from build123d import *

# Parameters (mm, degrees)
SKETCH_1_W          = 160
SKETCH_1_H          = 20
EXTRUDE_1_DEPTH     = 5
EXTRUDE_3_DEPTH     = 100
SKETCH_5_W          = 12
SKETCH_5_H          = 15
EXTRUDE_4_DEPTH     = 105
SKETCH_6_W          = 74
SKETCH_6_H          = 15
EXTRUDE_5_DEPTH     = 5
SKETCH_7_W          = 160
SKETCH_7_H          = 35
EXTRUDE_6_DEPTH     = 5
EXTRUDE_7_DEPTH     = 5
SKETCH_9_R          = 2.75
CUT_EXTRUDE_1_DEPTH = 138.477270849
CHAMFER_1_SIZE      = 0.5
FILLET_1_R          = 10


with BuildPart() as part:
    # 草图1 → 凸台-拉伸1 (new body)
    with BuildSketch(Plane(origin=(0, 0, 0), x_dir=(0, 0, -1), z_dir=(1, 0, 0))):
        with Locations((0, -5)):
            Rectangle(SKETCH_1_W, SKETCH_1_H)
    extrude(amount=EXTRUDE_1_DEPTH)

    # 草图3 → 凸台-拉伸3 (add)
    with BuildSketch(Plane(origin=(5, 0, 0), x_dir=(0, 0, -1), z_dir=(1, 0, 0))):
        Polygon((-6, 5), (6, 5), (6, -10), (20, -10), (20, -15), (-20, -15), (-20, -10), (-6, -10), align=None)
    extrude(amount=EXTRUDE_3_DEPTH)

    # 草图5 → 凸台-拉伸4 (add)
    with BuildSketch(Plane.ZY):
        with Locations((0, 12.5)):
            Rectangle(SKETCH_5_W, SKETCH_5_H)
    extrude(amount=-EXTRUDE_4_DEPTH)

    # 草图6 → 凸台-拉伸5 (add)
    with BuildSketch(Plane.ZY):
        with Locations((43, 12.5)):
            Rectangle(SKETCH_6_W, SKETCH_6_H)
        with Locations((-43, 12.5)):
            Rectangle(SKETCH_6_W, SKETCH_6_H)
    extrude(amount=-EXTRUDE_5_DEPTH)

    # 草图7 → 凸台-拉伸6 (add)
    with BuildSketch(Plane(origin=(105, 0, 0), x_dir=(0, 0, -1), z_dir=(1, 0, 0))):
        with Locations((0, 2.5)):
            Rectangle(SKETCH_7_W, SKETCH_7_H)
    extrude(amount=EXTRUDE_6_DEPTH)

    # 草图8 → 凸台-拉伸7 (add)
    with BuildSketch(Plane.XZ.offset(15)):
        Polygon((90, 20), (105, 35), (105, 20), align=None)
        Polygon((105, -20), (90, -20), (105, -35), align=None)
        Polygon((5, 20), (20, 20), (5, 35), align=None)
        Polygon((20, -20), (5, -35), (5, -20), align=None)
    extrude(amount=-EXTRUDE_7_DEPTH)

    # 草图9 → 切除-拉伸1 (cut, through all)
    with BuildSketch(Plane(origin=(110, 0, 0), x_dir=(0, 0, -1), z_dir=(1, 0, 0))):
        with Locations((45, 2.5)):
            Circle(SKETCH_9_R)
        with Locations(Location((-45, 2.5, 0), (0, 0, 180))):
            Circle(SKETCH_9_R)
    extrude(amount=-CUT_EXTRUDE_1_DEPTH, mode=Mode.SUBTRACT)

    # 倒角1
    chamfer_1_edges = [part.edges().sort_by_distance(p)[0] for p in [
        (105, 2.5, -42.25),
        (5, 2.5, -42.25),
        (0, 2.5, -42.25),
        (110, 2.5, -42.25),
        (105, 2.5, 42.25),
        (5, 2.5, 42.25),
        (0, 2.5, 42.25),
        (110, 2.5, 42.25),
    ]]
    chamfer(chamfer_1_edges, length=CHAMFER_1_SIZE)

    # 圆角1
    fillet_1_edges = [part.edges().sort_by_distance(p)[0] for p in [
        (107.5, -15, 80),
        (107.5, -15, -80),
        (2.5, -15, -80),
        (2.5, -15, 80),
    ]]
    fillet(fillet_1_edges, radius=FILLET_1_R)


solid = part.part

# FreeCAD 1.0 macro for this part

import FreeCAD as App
import Part
import Sketcher

V = App.Vector
Q = App.Units.Quantity


def edges_at(feature, points):
    """Names of the edges that pass closest to the given points."""
    edges = feature.Shape.Edges
    near = lambda p: min(range(len(edges)), key=lambda i: edges[i].distToShape(Part.Vertex(*p))[0])
    return sorted({f"Edge{near(p) + 1}" for p in points})

doc = App.newDocument("Part")
body = doc.addObject("PartDesign::Body", "Body")

sketch1 = body.newObject("Sketcher::SketchObject", "Sketch")
sketch1.AttachmentSupport = (doc.getObject("YZ_Plane"), [""])
sketch1.MapMode = "FlatFace"
sketch1.addGeometry([
    Part.LineSegment(V(5, 80, 0), V(-15, 80, 0)),
    Part.LineSegment(V(-15, 80, 0), V(-15, -80, 0)),
    Part.LineSegment(V(-15, -80, 0), V(5, -80, 0)),
    Part.LineSegment(V(5, -80, 0), V(5, 80, 0)),
], False)
sketch1.addConstraint([
    Sketcher.Constraint("Coincident", 0, 2, 1, 1),
    Sketcher.Constraint("Coincident", 1, 2, 2, 1),
    Sketcher.Constraint("Coincident", 2, 2, 3, 1),
    Sketcher.Constraint("Coincident", 3, 2, 0, 1),
    Sketcher.Constraint("Horizontal", 0),
    Sketcher.Constraint("Vertical", 1),
    Sketcher.Constraint("Horizontal", 2),
    Sketcher.Constraint("Vertical", 3),
    Sketcher.Constraint("DistanceX", 0, 2, 0, 1, Q("20 mm")),
    Sketcher.Constraint("DistanceY", 1, 2, 1, 1, Q("160 mm")),
    Sketcher.Constraint("DistanceX", 0, 2, -1, 1, Q("15 mm")),
    Sketcher.Constraint("DistanceY", -1, 1, 0, 2, Q("80 mm")),
])
pad1 = body.newObject("PartDesign::Pad", "Pad")
pad1.Profile = sketch1
pad1.Length = 5

sketch2 = body.newObject("Sketcher::SketchObject", "Sketch001")
sketch2.AttachmentSupport = (doc.getObject("YZ_Plane"), [""])
sketch2.MapMode = "FlatFace"
sketch2.AttachmentOffset = App.Placement(V(0, 0, 5), App.Rotation())
sketch2.addGeometry([
    Part.LineSegment(V(5, -6, 0), V(5, 6, 0)),
    Part.LineSegment(V(5, 6, 0), V(-10, 6, 0)),
    Part.LineSegment(V(-10, 6, 0), V(-10, 20, 0)),
    Part.LineSegment(V(-10, 20, 0), V(-15, 20, 0)),
    Part.LineSegment(V(-15, 20, 0), V(-15, -20, 0)),
    Part.LineSegment(V(-15, -20, 0), V(-10, -20, 0)),
    Part.LineSegment(V(-10, -20, 0), V(-10, -6, 0)),
    Part.LineSegment(V(-10, -6, 0), V(5, -6, 0)),
], False)
sketch2.addConstraint([
    Sketcher.Constraint("Coincident", 0, 2, 1, 1),
    Sketcher.Constraint("Coincident", 1, 2, 2, 1),
    Sketcher.Constraint("Coincident", 2, 2, 3, 1),
    Sketcher.Constraint("Coincident", 3, 2, 4, 1),
    Sketcher.Constraint("Coincident", 4, 2, 5, 1),
    Sketcher.Constraint("Coincident", 5, 2, 6, 1),
    Sketcher.Constraint("Coincident", 6, 2, 7, 1),
    Sketcher.Constraint("Coincident", 7, 2, 0, 1),
    Sketcher.Constraint("Vertical", 0),
    Sketcher.Constraint("Horizontal", 1),
    Sketcher.Constraint("Vertical", 2),
    Sketcher.Constraint("Horizontal", 3),
    Sketcher.Constraint("Vertical", 4),
    Sketcher.Constraint("Horizontal", 5),
    Sketcher.Constraint("Vertical", 6),
    Sketcher.Constraint("Horizontal", 7),
    Sketcher.Constraint("Symmetric", 2, 2, 5, 2, -1),
    Sketcher.Constraint("Equal", 2, 6),
    Sketcher.Constraint("DistanceX", 1, 2, 1, 1, Q("15 mm")),
    Sketcher.Constraint("DistanceX", 3, 2, 3, 1, Q("5 mm")),
    Sketcher.Constraint("DistanceY", 0, 1, 0, 2, Q("12 mm")),
    Sketcher.Constraint("DistanceY", 2, 1, 2, 2, Q("14 mm")),
    Sketcher.Constraint("DistanceX", -1, 1, 0, 2, Q("5 mm")),
])
pad2 = body.newObject("PartDesign::Pad", "Pad001")
pad2.Profile = sketch2
pad2.Length = 100

sketch3 = body.newObject("Sketcher::SketchObject", "Sketch002")
sketch3.AttachmentSupport = (doc.getObject("YZ_Plane"), [""])
sketch3.MapMode = "FlatFace"
sketch3.addGeometry([
    Part.LineSegment(V(20, -6, 0), V(5, -6, 0)),
    Part.LineSegment(V(5, -6, 0), V(5, 6, 0)),
    Part.LineSegment(V(5, 6, 0), V(20, 6, 0)),
    Part.LineSegment(V(20, 6, 0), V(20, -6, 0)),
], False)
sketch3.addConstraint([
    Sketcher.Constraint("Coincident", 0, 2, 1, 1),
    Sketcher.Constraint("Coincident", 1, 2, 2, 1),
    Sketcher.Constraint("Coincident", 2, 2, 3, 1),
    Sketcher.Constraint("Coincident", 3, 2, 0, 1),
    Sketcher.Constraint("Horizontal", 0),
    Sketcher.Constraint("Vertical", 1),
    Sketcher.Constraint("Horizontal", 2),
    Sketcher.Constraint("Vertical", 3),
    Sketcher.Constraint("DistanceX", 0, 2, 0, 1, Q("15 mm")),
    Sketcher.Constraint("DistanceY", 1, 1, 1, 2, Q("12 mm")),
    Sketcher.Constraint("DistanceX", -1, 1, 0, 2, Q("5 mm")),
    Sketcher.Constraint("DistanceY", 0, 2, -1, 1, Q("6 mm")),
])
pad3 = body.newObject("PartDesign::Pad", "Pad002")
pad3.Profile = sketch3
pad3.Length = 105

sketch4 = body.newObject("Sketcher::SketchObject", "Sketch003")
sketch4.AttachmentSupport = (doc.getObject("YZ_Plane"), [""])
sketch4.MapMode = "FlatFace"
sketch4.addGeometry([
    Part.LineSegment(V(20, 6, 0), V(5, 6, 0)),
    Part.LineSegment(V(5, 6, 0), V(5, 80, 0)),
    Part.LineSegment(V(5, 80, 0), V(20, 80, 0)),
    Part.LineSegment(V(20, 80, 0), V(20, 6, 0)),
    Part.LineSegment(V(20, -80, 0), V(5, -80, 0)),
    Part.LineSegment(V(5, -80, 0), V(5, -6, 0)),
    Part.LineSegment(V(5, -6, 0), V(20, -6, 0)),
    Part.LineSegment(V(20, -6, 0), V(20, -80, 0)),
], False)
sketch4.addConstraint([
    Sketcher.Constraint("Coincident", 0, 2, 1, 1),
    Sketcher.Constraint("Coincident", 1, 2, 2, 1),
    Sketcher.Constraint("Coincident", 2, 2, 3, 1),
    Sketcher.Constraint("Coincident", 3, 2, 0, 1),
    Sketcher.Constraint("Coincident", 4, 2, 5, 1),
    Sketcher.Constraint("Coincident", 5, 2, 6, 1),
    Sketcher.Constraint("Coincident", 6, 2, 7, 1),
    Sketcher.Constraint("Coincident", 7, 2, 4, 1),
    Sketcher.Constraint("Horizontal", 0),
    Sketcher.Constraint("Vertical", 1),
    Sketcher.Constraint("Horizontal", 2),
    Sketcher.Constraint("Vertical", 3),
    Sketcher.Constraint("Horizontal", 4),
    Sketcher.Constraint("Vertical", 5),
    Sketcher.Constraint("Horizontal", 6),
    Sketcher.Constraint("Vertical", 7),
    Sketcher.Constraint("Symmetric", 1, 2, 4, 2, -1),
    Sketcher.Constraint("Symmetric", 3, 2, 6, 2, -1),
    Sketcher.Constraint("DistanceX", 0, 2, 0, 1, Q("15 mm")),
    Sketcher.Constraint("DistanceY", 1, 1, 1, 2, Q("74 mm")),
    Sketcher.Constraint("DistanceX", -1, 1, 0, 2, Q("5 mm")),
    Sketcher.Constraint("DistanceY", -1, 1, 0, 2, Q("6 mm")),
])
pad4 = body.newObject("PartDesign::Pad", "Pad003")
pad4.Profile = sketch4
pad4.Length = 5

sketch5 = body.newObject("Sketcher::SketchObject", "Sketch004")
sketch5.AttachmentSupport = (doc.getObject("YZ_Plane"), [""])
sketch5.MapMode = "FlatFace"
sketch5.AttachmentOffset = App.Placement(V(0, 0, 105), App.Rotation())
sketch5.addGeometry([
    Part.LineSegment(V(20, 80, 0), V(-15, 80, 0)),
    Part.LineSegment(V(-15, 80, 0), V(-15, -80, 0)),
    Part.LineSegment(V(-15, -80, 0), V(20, -80, 0)),
    Part.LineSegment(V(20, -80, 0), V(20, 80, 0)),
], False)
sketch5.addConstraint([
    Sketcher.Constraint("Coincident", 0, 2, 1, 1),
    Sketcher.Constraint("Coincident", 1, 2, 2, 1),
    Sketcher.Constraint("Coincident", 2, 2, 3, 1),
    Sketcher.Constraint("Coincident", 3, 2, 0, 1),
    Sketcher.Constraint("Horizontal", 0),
    Sketcher.Constraint("Vertical", 1),
    Sketcher.Constraint("Horizontal", 2),
    Sketcher.Constraint("Vertical", 3),
    Sketcher.Constraint("DistanceX", 0, 2, 0, 1, Q("35 mm")),
    Sketcher.Constraint("DistanceY", 1, 2, 1, 1, Q("160 mm")),
    Sketcher.Constraint("DistanceX", 0, 2, -1, 1, Q("15 mm")),
    Sketcher.Constraint("DistanceY", -1, 1, 0, 2, Q("80 mm")),
])
pad5 = body.newObject("PartDesign::Pad", "Pad004")
pad5.Profile = sketch5
pad5.Length = 5

sketch6 = body.newObject("Sketcher::SketchObject", "Sketch005")
sketch6.AttachmentSupport = (doc.getObject("XZ_Plane"), [""])
sketch6.MapMode = "FlatFace"
sketch6.AttachmentOffset = App.Placement(V(0, 0, 15), App.Rotation())
sketch6.addGeometry([
    Part.LineSegment(V(105, 35, 0), V(90, 20, 0)),
    Part.LineSegment(V(90, 20, 0), V(105, 20, 0)),
    Part.LineSegment(V(105, 20, 0), V(105, 35, 0)),
    Part.LineSegment(V(105, -20, 0), V(90, -20, 0)),
    Part.LineSegment(V(90, -20, 0), V(105, -35, 0)),
    Part.LineSegment(V(105, -35, 0), V(105, -20, 0)),
    Part.LineSegment(V(5, 20, 0), V(20, 20, 0)),
    Part.LineSegment(V(20, 20, 0), V(5, 35, 0)),
    Part.LineSegment(V(5, 35, 0), V(5, 20, 0)),
    Part.LineSegment(V(5, -35, 0), V(20, -20, 0)),
    Part.LineSegment(V(20, -20, 0), V(5, -20, 0)),
    Part.LineSegment(V(5, -20, 0), V(5, -35, 0)),
], False)
sketch6.addConstraint([
    Sketcher.Constraint("Coincident", 0, 2, 1, 1),
    Sketcher.Constraint("Coincident", 1, 2, 2, 1),
    Sketcher.Constraint("Coincident", 2, 2, 0, 1),
    Sketcher.Constraint("Coincident", 3, 2, 4, 1),
    Sketcher.Constraint("Coincident", 4, 2, 5, 1),
    Sketcher.Constraint("Coincident", 5, 2, 3, 1),
    Sketcher.Constraint("Coincident", 6, 2, 7, 1),
    Sketcher.Constraint("Coincident", 7, 2, 8, 1),
    Sketcher.Constraint("Coincident", 8, 2, 6, 1),
    Sketcher.Constraint("Coincident", 9, 2, 10, 1),
    Sketcher.Constraint("Coincident", 10, 2, 11, 1),
    Sketcher.Constraint("Coincident", 11, 2, 9, 1),
    Sketcher.Constraint("Horizontal", 1),
    Sketcher.Constraint("Vertical", 2),
    Sketcher.Constraint("Horizontal", 3),
    Sketcher.Constraint("Vertical", 5),
    Sketcher.Constraint("Horizontal", 6),
    Sketcher.Constraint("Vertical", 8),
    Sketcher.Constraint("Horizontal", 10),
    Sketcher.Constraint("Vertical", 11),
    Sketcher.Constraint("Symmetric", 0, 2, 3, 2, -1),
    Sketcher.Constraint("Symmetric", 2, 2, 4, 2, -1),
    Sketcher.Constraint("Symmetric", 6, 2, 9, 2, -1),
    Sketcher.Constraint("Symmetric", 7, 2, 11, 2, -1),
    Sketcher.Constraint("Perpendicular", 0, 4),
    Sketcher.Constraint("Parallel", 4, 7),
    Sketcher.Constraint("Horizontal", 1, 2, 6, 2),
    Sketcher.Constraint("Horizontal", 2, 2, 7, 2),
    Sketcher.Constraint("DistanceX", 1, 1, 1, 2, Q("15 mm")),
    Sketcher.Constraint("DistanceX", -1, 1, 0, 2, Q("90 mm")),
    Sketcher.Constraint("DistanceY", -1, 1, 0, 2, Q("20 mm")),
    Sketcher.Constraint("DistanceX", -1, 1, 6, 2, Q("20 mm")),
])
pad6 = body.newObject("PartDesign::Pad", "Pad005")
pad6.Profile = sketch6
pad6.Length = 5
pad6.Reversed = True

sketch7 = body.newObject("Sketcher::SketchObject", "Sketch006")
sketch7.AttachmentSupport = (doc.getObject("YZ_Plane"), [""])
sketch7.MapMode = "FlatFace"
sketch7.AttachmentOffset = App.Placement(V(0, 0, 110), App.Rotation())
sketch7.addGeometry([
    Part.Circle(V(2.5, -45, 0), V(0, 0, 1), 2.8),
    Part.Circle(V(2.5, 45, 0), V(0, 0, 1), 2.8),
], False)
sketch7.addConstraint([
    Sketcher.Constraint("Equal", 0, 1),
    Sketcher.Constraint("Symmetric", 0, 3, 1, 3, -1),
    Sketcher.Constraint("Diameter", 0, Q("5.5 mm")),
    Sketcher.Constraint("DistanceY", 0, 3, -1, 1, Q("45 mm")),
    Sketcher.Constraint("DistanceX", -1, 1, 0, 3, Q("2.5 mm")),
])
pocket1 = body.newObject("PartDesign::Pocket", "Pocket")
pocket1.Profile = sketch7
pocket1.Type = "ThroughAll"
doc.recompute()

chamfer = body.newObject("PartDesign::Chamfer", "Chamfer")
chamfer.Base = (pocket1, edges_at(pocket1, [
    (105, 2.5, -42.25),
    (5, 2.5, -42.25),
    (0, 2.5, -42.25),
    (110, 2.5, -42.25),
    (105, 2.5, 42.25),
    (5, 2.5, 42.25),
    (0, 2.5, 42.25),
    (110, 2.5, 42.25),
]))
chamfer.Size = 0.5
doc.recompute()

fillet = body.newObject("PartDesign::Fillet", "Fillet")
fillet.Base = (chamfer, edges_at(chamfer, [
    (107.5, -15, 80),
    (107.5, -15, -80),
    (2.5, -15, -80),
    (2.5, -15, 80),
]))
fillet.Radius = 10

doc.recompute()
